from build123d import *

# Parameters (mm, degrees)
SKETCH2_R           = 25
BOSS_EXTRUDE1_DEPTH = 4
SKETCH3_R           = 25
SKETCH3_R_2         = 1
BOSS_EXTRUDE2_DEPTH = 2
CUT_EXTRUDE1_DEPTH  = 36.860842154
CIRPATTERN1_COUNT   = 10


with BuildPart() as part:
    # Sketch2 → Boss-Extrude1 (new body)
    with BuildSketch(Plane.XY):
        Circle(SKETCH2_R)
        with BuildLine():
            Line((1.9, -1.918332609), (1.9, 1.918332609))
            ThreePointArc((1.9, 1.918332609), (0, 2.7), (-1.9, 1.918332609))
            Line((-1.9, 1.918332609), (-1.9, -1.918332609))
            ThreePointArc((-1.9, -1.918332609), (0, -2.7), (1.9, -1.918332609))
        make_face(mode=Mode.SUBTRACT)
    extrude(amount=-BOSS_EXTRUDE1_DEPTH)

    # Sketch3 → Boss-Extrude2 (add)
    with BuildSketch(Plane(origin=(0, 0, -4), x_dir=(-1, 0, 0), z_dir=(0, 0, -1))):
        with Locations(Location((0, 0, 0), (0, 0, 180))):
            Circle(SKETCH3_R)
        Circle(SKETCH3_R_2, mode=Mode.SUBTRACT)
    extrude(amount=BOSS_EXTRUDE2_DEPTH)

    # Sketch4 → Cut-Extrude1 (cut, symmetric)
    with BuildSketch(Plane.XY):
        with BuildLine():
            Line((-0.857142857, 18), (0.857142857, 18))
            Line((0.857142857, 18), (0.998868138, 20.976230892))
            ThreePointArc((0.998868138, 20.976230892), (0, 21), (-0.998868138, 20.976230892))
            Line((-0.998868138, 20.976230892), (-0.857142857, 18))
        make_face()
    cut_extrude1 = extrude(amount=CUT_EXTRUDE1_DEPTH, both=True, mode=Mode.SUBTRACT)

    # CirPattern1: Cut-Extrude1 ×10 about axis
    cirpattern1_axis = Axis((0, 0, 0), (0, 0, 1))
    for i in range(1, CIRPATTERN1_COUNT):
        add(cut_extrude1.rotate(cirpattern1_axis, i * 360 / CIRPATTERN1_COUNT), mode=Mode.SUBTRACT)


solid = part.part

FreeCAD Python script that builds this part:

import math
import FreeCAD as App
import Part
import Sketcher

V = App.Vector

doc = App.newDocument("Part")
body = doc.addObject("PartDesign::Body", "Body")

# Sketch on XY plane
sketch1 = doc.addObject("Sketcher::SketchObject", "Sketch")
body.addObject(sketch1)
sketch1.AttachmentSupport = (doc.XY_Plane, [""])
sketch1.MapMode = "FlatFace"
sketch1.addGeometry([
    Part.Circle(V(0, 0, 0), V(0, 0, 1), 25),  # 0
    Part.LineSegment(V(1.9, 1.918333, 0), V(1.9, -1.918333, 0)),  # 1
    Part.ArcOfCircle(Part.Circle(V(0, 0, 0), V(0, 0, 1), 2.7), math.radians(-134.724913), math.radians(-45.275087)),  # 2
    Part.LineSegment(V(-1.9, -1.918333, 0), V(-1.9, 1.918333, 0)),  # 3
    Part.ArcOfCircle(Part.Circle(V(0, 0, 0), V(0, 0, 1), 2.7), math.radians(45.275087), math.radians(134.724913)),  # 4
], False)
sketch1.addConstraint([
    Sketcher.Constraint("Coincident", 1, 2, 2, 2),
    Sketcher.Constraint("Coincident", 2, 1, 3, 1),
    Sketcher.Constraint("Coincident", 3, 2, 4, 2),
    Sketcher.Constraint("Coincident", 4, 1, 1, 1),
    Sketcher.Constraint("Vertical", 1),
    Sketcher.Constraint("Vertical", 3),
    Sketcher.Constraint("Coincident", 0, 3, -1, 1),
    Sketcher.Constraint("Coincident", 2, 3, -1, 1),
    Sketcher.Constraint("Coincident", 4, 3, -1, 1),
    Sketcher.Constraint("Equal", 2, 4),
    Sketcher.Constraint("Horizontal", 1, 2, 2, 1),
    Sketcher.Constraint("Diameter", 0, 50.0),
    Sketcher.Constraint("Radius", 2, 2.7),
    Sketcher.Constraint("DistanceX", -1, 1, 1, 2, 1.9),
])
pad1 = doc.addObject("PartDesign::Pad", "Pad")
body.addObject(pad1)
pad1.Profile = sketch1
pad1.Length = 4
pad1.Reversed = True

# Sketch on XY plane
sketch2 = doc.addObject("Sketcher::SketchObject", "Sketch001")
body.addObject(sketch2)
sketch2.AttachmentSupport = (doc.XY_Plane, [""])
sketch2.MapMode = "FlatFace"
sketch2.AttachmentOffset = App.Placement(V(0, 0, -4), App.Rotation())
sketch2.addGeometry([
    Part.Circle(V(0, 0, 0), V(0, 0, 1), 25),
    Part.Circle(V(0, 0, 0), V(0, 0, 1), 1),
], False)
sketch2.addConstraint([
    Sketcher.Constraint("Coincident", 0, 3, -1, 1),
    Sketcher.Constraint("Coincident", 1, 3, -1, 1),
    Sketcher.Constraint("Diameter", 0, 50.0),
    Sketcher.Constraint("Diameter", 1, 2.0),
])
pad2 = doc.addObject("PartDesign::Pad", "Pad001")
body.addObject(pad2)
pad2.Profile = sketch2
pad2.Length = 2
pad2.Reversed = True

# Sketch on XY plane
sketch3 = doc.addObject("Sketcher::SketchObject", "Sketch002")
body.addObject(sketch3)
sketch3.AttachmentSupport = (doc.XY_Plane, [""])
sketch3.MapMode = "FlatFace"
sketch3.addGeometry([
    Part.LineSegment(V(-0.857143, 18, 0), V(0.857143, 18, 0)),
    Part.LineSegment(V(0.857143, 18, 0), V(0.998868, 20.976231, 0)),
    Part.ArcOfCircle(Part.Circle(V(0, 0, 0), V(0, 0, 1), 21), math.radians(87.273689), math.radians(92.726311)),
    Part.LineSegment(V(-0.998868, 20.976231, 0), V(-0.857143, 18, 0)),
], False)
sketch3.addConstraint([
    Sketcher.Constraint("Coincident", 0, 2, 1, 1),
    Sketcher.Constraint("Coincident", 1, 2, 2, 1),
    Sketcher.Constraint("Coincident", 2, 2, 3, 1),
    Sketcher.Constraint("Coincident", 3, 2, 0, 1),
    Sketcher.Constraint("Horizontal", 0),
    Sketcher.Constraint("Coincident", 2, 3, -1, 1),
    Sketcher.Constraint("Horizontal", 1, 2, 2, 2),
    Sketcher.Constraint("Equal", 1, 3),
    Sketcher.Constraint("Radius", 2, 21.0),
    Sketcher.Constraint("DistanceY", -1, 1, 0, 2, 18.0),
    Sketcher.Constraint("DistanceX", 0, 1, 0, 2, 1.714286),
    Sketcher.Constraint("DistanceX", -1, 1, 1, 2, 0.998868),
])
pocket1 = doc.addObject("PartDesign::Pocket", "Pocket")
body.addObject(pocket1)
pocket1.Profile = sketch3
pocket1.Length = 73.721684
pocket1.Midplane = True
doc.recompute()

polarpattern = doc.addObject("PartDesign::PolarPattern", "PolarPattern")
body.addObject(polarpattern)
polarpattern.Originals = [pocket1]
polarpattern.Axis = (doc.Z_Axis, [""])
polarpattern.Angle = 360
polarpattern.Occurrences = 10
body.Tip = polarpattern

doc.recompute()
